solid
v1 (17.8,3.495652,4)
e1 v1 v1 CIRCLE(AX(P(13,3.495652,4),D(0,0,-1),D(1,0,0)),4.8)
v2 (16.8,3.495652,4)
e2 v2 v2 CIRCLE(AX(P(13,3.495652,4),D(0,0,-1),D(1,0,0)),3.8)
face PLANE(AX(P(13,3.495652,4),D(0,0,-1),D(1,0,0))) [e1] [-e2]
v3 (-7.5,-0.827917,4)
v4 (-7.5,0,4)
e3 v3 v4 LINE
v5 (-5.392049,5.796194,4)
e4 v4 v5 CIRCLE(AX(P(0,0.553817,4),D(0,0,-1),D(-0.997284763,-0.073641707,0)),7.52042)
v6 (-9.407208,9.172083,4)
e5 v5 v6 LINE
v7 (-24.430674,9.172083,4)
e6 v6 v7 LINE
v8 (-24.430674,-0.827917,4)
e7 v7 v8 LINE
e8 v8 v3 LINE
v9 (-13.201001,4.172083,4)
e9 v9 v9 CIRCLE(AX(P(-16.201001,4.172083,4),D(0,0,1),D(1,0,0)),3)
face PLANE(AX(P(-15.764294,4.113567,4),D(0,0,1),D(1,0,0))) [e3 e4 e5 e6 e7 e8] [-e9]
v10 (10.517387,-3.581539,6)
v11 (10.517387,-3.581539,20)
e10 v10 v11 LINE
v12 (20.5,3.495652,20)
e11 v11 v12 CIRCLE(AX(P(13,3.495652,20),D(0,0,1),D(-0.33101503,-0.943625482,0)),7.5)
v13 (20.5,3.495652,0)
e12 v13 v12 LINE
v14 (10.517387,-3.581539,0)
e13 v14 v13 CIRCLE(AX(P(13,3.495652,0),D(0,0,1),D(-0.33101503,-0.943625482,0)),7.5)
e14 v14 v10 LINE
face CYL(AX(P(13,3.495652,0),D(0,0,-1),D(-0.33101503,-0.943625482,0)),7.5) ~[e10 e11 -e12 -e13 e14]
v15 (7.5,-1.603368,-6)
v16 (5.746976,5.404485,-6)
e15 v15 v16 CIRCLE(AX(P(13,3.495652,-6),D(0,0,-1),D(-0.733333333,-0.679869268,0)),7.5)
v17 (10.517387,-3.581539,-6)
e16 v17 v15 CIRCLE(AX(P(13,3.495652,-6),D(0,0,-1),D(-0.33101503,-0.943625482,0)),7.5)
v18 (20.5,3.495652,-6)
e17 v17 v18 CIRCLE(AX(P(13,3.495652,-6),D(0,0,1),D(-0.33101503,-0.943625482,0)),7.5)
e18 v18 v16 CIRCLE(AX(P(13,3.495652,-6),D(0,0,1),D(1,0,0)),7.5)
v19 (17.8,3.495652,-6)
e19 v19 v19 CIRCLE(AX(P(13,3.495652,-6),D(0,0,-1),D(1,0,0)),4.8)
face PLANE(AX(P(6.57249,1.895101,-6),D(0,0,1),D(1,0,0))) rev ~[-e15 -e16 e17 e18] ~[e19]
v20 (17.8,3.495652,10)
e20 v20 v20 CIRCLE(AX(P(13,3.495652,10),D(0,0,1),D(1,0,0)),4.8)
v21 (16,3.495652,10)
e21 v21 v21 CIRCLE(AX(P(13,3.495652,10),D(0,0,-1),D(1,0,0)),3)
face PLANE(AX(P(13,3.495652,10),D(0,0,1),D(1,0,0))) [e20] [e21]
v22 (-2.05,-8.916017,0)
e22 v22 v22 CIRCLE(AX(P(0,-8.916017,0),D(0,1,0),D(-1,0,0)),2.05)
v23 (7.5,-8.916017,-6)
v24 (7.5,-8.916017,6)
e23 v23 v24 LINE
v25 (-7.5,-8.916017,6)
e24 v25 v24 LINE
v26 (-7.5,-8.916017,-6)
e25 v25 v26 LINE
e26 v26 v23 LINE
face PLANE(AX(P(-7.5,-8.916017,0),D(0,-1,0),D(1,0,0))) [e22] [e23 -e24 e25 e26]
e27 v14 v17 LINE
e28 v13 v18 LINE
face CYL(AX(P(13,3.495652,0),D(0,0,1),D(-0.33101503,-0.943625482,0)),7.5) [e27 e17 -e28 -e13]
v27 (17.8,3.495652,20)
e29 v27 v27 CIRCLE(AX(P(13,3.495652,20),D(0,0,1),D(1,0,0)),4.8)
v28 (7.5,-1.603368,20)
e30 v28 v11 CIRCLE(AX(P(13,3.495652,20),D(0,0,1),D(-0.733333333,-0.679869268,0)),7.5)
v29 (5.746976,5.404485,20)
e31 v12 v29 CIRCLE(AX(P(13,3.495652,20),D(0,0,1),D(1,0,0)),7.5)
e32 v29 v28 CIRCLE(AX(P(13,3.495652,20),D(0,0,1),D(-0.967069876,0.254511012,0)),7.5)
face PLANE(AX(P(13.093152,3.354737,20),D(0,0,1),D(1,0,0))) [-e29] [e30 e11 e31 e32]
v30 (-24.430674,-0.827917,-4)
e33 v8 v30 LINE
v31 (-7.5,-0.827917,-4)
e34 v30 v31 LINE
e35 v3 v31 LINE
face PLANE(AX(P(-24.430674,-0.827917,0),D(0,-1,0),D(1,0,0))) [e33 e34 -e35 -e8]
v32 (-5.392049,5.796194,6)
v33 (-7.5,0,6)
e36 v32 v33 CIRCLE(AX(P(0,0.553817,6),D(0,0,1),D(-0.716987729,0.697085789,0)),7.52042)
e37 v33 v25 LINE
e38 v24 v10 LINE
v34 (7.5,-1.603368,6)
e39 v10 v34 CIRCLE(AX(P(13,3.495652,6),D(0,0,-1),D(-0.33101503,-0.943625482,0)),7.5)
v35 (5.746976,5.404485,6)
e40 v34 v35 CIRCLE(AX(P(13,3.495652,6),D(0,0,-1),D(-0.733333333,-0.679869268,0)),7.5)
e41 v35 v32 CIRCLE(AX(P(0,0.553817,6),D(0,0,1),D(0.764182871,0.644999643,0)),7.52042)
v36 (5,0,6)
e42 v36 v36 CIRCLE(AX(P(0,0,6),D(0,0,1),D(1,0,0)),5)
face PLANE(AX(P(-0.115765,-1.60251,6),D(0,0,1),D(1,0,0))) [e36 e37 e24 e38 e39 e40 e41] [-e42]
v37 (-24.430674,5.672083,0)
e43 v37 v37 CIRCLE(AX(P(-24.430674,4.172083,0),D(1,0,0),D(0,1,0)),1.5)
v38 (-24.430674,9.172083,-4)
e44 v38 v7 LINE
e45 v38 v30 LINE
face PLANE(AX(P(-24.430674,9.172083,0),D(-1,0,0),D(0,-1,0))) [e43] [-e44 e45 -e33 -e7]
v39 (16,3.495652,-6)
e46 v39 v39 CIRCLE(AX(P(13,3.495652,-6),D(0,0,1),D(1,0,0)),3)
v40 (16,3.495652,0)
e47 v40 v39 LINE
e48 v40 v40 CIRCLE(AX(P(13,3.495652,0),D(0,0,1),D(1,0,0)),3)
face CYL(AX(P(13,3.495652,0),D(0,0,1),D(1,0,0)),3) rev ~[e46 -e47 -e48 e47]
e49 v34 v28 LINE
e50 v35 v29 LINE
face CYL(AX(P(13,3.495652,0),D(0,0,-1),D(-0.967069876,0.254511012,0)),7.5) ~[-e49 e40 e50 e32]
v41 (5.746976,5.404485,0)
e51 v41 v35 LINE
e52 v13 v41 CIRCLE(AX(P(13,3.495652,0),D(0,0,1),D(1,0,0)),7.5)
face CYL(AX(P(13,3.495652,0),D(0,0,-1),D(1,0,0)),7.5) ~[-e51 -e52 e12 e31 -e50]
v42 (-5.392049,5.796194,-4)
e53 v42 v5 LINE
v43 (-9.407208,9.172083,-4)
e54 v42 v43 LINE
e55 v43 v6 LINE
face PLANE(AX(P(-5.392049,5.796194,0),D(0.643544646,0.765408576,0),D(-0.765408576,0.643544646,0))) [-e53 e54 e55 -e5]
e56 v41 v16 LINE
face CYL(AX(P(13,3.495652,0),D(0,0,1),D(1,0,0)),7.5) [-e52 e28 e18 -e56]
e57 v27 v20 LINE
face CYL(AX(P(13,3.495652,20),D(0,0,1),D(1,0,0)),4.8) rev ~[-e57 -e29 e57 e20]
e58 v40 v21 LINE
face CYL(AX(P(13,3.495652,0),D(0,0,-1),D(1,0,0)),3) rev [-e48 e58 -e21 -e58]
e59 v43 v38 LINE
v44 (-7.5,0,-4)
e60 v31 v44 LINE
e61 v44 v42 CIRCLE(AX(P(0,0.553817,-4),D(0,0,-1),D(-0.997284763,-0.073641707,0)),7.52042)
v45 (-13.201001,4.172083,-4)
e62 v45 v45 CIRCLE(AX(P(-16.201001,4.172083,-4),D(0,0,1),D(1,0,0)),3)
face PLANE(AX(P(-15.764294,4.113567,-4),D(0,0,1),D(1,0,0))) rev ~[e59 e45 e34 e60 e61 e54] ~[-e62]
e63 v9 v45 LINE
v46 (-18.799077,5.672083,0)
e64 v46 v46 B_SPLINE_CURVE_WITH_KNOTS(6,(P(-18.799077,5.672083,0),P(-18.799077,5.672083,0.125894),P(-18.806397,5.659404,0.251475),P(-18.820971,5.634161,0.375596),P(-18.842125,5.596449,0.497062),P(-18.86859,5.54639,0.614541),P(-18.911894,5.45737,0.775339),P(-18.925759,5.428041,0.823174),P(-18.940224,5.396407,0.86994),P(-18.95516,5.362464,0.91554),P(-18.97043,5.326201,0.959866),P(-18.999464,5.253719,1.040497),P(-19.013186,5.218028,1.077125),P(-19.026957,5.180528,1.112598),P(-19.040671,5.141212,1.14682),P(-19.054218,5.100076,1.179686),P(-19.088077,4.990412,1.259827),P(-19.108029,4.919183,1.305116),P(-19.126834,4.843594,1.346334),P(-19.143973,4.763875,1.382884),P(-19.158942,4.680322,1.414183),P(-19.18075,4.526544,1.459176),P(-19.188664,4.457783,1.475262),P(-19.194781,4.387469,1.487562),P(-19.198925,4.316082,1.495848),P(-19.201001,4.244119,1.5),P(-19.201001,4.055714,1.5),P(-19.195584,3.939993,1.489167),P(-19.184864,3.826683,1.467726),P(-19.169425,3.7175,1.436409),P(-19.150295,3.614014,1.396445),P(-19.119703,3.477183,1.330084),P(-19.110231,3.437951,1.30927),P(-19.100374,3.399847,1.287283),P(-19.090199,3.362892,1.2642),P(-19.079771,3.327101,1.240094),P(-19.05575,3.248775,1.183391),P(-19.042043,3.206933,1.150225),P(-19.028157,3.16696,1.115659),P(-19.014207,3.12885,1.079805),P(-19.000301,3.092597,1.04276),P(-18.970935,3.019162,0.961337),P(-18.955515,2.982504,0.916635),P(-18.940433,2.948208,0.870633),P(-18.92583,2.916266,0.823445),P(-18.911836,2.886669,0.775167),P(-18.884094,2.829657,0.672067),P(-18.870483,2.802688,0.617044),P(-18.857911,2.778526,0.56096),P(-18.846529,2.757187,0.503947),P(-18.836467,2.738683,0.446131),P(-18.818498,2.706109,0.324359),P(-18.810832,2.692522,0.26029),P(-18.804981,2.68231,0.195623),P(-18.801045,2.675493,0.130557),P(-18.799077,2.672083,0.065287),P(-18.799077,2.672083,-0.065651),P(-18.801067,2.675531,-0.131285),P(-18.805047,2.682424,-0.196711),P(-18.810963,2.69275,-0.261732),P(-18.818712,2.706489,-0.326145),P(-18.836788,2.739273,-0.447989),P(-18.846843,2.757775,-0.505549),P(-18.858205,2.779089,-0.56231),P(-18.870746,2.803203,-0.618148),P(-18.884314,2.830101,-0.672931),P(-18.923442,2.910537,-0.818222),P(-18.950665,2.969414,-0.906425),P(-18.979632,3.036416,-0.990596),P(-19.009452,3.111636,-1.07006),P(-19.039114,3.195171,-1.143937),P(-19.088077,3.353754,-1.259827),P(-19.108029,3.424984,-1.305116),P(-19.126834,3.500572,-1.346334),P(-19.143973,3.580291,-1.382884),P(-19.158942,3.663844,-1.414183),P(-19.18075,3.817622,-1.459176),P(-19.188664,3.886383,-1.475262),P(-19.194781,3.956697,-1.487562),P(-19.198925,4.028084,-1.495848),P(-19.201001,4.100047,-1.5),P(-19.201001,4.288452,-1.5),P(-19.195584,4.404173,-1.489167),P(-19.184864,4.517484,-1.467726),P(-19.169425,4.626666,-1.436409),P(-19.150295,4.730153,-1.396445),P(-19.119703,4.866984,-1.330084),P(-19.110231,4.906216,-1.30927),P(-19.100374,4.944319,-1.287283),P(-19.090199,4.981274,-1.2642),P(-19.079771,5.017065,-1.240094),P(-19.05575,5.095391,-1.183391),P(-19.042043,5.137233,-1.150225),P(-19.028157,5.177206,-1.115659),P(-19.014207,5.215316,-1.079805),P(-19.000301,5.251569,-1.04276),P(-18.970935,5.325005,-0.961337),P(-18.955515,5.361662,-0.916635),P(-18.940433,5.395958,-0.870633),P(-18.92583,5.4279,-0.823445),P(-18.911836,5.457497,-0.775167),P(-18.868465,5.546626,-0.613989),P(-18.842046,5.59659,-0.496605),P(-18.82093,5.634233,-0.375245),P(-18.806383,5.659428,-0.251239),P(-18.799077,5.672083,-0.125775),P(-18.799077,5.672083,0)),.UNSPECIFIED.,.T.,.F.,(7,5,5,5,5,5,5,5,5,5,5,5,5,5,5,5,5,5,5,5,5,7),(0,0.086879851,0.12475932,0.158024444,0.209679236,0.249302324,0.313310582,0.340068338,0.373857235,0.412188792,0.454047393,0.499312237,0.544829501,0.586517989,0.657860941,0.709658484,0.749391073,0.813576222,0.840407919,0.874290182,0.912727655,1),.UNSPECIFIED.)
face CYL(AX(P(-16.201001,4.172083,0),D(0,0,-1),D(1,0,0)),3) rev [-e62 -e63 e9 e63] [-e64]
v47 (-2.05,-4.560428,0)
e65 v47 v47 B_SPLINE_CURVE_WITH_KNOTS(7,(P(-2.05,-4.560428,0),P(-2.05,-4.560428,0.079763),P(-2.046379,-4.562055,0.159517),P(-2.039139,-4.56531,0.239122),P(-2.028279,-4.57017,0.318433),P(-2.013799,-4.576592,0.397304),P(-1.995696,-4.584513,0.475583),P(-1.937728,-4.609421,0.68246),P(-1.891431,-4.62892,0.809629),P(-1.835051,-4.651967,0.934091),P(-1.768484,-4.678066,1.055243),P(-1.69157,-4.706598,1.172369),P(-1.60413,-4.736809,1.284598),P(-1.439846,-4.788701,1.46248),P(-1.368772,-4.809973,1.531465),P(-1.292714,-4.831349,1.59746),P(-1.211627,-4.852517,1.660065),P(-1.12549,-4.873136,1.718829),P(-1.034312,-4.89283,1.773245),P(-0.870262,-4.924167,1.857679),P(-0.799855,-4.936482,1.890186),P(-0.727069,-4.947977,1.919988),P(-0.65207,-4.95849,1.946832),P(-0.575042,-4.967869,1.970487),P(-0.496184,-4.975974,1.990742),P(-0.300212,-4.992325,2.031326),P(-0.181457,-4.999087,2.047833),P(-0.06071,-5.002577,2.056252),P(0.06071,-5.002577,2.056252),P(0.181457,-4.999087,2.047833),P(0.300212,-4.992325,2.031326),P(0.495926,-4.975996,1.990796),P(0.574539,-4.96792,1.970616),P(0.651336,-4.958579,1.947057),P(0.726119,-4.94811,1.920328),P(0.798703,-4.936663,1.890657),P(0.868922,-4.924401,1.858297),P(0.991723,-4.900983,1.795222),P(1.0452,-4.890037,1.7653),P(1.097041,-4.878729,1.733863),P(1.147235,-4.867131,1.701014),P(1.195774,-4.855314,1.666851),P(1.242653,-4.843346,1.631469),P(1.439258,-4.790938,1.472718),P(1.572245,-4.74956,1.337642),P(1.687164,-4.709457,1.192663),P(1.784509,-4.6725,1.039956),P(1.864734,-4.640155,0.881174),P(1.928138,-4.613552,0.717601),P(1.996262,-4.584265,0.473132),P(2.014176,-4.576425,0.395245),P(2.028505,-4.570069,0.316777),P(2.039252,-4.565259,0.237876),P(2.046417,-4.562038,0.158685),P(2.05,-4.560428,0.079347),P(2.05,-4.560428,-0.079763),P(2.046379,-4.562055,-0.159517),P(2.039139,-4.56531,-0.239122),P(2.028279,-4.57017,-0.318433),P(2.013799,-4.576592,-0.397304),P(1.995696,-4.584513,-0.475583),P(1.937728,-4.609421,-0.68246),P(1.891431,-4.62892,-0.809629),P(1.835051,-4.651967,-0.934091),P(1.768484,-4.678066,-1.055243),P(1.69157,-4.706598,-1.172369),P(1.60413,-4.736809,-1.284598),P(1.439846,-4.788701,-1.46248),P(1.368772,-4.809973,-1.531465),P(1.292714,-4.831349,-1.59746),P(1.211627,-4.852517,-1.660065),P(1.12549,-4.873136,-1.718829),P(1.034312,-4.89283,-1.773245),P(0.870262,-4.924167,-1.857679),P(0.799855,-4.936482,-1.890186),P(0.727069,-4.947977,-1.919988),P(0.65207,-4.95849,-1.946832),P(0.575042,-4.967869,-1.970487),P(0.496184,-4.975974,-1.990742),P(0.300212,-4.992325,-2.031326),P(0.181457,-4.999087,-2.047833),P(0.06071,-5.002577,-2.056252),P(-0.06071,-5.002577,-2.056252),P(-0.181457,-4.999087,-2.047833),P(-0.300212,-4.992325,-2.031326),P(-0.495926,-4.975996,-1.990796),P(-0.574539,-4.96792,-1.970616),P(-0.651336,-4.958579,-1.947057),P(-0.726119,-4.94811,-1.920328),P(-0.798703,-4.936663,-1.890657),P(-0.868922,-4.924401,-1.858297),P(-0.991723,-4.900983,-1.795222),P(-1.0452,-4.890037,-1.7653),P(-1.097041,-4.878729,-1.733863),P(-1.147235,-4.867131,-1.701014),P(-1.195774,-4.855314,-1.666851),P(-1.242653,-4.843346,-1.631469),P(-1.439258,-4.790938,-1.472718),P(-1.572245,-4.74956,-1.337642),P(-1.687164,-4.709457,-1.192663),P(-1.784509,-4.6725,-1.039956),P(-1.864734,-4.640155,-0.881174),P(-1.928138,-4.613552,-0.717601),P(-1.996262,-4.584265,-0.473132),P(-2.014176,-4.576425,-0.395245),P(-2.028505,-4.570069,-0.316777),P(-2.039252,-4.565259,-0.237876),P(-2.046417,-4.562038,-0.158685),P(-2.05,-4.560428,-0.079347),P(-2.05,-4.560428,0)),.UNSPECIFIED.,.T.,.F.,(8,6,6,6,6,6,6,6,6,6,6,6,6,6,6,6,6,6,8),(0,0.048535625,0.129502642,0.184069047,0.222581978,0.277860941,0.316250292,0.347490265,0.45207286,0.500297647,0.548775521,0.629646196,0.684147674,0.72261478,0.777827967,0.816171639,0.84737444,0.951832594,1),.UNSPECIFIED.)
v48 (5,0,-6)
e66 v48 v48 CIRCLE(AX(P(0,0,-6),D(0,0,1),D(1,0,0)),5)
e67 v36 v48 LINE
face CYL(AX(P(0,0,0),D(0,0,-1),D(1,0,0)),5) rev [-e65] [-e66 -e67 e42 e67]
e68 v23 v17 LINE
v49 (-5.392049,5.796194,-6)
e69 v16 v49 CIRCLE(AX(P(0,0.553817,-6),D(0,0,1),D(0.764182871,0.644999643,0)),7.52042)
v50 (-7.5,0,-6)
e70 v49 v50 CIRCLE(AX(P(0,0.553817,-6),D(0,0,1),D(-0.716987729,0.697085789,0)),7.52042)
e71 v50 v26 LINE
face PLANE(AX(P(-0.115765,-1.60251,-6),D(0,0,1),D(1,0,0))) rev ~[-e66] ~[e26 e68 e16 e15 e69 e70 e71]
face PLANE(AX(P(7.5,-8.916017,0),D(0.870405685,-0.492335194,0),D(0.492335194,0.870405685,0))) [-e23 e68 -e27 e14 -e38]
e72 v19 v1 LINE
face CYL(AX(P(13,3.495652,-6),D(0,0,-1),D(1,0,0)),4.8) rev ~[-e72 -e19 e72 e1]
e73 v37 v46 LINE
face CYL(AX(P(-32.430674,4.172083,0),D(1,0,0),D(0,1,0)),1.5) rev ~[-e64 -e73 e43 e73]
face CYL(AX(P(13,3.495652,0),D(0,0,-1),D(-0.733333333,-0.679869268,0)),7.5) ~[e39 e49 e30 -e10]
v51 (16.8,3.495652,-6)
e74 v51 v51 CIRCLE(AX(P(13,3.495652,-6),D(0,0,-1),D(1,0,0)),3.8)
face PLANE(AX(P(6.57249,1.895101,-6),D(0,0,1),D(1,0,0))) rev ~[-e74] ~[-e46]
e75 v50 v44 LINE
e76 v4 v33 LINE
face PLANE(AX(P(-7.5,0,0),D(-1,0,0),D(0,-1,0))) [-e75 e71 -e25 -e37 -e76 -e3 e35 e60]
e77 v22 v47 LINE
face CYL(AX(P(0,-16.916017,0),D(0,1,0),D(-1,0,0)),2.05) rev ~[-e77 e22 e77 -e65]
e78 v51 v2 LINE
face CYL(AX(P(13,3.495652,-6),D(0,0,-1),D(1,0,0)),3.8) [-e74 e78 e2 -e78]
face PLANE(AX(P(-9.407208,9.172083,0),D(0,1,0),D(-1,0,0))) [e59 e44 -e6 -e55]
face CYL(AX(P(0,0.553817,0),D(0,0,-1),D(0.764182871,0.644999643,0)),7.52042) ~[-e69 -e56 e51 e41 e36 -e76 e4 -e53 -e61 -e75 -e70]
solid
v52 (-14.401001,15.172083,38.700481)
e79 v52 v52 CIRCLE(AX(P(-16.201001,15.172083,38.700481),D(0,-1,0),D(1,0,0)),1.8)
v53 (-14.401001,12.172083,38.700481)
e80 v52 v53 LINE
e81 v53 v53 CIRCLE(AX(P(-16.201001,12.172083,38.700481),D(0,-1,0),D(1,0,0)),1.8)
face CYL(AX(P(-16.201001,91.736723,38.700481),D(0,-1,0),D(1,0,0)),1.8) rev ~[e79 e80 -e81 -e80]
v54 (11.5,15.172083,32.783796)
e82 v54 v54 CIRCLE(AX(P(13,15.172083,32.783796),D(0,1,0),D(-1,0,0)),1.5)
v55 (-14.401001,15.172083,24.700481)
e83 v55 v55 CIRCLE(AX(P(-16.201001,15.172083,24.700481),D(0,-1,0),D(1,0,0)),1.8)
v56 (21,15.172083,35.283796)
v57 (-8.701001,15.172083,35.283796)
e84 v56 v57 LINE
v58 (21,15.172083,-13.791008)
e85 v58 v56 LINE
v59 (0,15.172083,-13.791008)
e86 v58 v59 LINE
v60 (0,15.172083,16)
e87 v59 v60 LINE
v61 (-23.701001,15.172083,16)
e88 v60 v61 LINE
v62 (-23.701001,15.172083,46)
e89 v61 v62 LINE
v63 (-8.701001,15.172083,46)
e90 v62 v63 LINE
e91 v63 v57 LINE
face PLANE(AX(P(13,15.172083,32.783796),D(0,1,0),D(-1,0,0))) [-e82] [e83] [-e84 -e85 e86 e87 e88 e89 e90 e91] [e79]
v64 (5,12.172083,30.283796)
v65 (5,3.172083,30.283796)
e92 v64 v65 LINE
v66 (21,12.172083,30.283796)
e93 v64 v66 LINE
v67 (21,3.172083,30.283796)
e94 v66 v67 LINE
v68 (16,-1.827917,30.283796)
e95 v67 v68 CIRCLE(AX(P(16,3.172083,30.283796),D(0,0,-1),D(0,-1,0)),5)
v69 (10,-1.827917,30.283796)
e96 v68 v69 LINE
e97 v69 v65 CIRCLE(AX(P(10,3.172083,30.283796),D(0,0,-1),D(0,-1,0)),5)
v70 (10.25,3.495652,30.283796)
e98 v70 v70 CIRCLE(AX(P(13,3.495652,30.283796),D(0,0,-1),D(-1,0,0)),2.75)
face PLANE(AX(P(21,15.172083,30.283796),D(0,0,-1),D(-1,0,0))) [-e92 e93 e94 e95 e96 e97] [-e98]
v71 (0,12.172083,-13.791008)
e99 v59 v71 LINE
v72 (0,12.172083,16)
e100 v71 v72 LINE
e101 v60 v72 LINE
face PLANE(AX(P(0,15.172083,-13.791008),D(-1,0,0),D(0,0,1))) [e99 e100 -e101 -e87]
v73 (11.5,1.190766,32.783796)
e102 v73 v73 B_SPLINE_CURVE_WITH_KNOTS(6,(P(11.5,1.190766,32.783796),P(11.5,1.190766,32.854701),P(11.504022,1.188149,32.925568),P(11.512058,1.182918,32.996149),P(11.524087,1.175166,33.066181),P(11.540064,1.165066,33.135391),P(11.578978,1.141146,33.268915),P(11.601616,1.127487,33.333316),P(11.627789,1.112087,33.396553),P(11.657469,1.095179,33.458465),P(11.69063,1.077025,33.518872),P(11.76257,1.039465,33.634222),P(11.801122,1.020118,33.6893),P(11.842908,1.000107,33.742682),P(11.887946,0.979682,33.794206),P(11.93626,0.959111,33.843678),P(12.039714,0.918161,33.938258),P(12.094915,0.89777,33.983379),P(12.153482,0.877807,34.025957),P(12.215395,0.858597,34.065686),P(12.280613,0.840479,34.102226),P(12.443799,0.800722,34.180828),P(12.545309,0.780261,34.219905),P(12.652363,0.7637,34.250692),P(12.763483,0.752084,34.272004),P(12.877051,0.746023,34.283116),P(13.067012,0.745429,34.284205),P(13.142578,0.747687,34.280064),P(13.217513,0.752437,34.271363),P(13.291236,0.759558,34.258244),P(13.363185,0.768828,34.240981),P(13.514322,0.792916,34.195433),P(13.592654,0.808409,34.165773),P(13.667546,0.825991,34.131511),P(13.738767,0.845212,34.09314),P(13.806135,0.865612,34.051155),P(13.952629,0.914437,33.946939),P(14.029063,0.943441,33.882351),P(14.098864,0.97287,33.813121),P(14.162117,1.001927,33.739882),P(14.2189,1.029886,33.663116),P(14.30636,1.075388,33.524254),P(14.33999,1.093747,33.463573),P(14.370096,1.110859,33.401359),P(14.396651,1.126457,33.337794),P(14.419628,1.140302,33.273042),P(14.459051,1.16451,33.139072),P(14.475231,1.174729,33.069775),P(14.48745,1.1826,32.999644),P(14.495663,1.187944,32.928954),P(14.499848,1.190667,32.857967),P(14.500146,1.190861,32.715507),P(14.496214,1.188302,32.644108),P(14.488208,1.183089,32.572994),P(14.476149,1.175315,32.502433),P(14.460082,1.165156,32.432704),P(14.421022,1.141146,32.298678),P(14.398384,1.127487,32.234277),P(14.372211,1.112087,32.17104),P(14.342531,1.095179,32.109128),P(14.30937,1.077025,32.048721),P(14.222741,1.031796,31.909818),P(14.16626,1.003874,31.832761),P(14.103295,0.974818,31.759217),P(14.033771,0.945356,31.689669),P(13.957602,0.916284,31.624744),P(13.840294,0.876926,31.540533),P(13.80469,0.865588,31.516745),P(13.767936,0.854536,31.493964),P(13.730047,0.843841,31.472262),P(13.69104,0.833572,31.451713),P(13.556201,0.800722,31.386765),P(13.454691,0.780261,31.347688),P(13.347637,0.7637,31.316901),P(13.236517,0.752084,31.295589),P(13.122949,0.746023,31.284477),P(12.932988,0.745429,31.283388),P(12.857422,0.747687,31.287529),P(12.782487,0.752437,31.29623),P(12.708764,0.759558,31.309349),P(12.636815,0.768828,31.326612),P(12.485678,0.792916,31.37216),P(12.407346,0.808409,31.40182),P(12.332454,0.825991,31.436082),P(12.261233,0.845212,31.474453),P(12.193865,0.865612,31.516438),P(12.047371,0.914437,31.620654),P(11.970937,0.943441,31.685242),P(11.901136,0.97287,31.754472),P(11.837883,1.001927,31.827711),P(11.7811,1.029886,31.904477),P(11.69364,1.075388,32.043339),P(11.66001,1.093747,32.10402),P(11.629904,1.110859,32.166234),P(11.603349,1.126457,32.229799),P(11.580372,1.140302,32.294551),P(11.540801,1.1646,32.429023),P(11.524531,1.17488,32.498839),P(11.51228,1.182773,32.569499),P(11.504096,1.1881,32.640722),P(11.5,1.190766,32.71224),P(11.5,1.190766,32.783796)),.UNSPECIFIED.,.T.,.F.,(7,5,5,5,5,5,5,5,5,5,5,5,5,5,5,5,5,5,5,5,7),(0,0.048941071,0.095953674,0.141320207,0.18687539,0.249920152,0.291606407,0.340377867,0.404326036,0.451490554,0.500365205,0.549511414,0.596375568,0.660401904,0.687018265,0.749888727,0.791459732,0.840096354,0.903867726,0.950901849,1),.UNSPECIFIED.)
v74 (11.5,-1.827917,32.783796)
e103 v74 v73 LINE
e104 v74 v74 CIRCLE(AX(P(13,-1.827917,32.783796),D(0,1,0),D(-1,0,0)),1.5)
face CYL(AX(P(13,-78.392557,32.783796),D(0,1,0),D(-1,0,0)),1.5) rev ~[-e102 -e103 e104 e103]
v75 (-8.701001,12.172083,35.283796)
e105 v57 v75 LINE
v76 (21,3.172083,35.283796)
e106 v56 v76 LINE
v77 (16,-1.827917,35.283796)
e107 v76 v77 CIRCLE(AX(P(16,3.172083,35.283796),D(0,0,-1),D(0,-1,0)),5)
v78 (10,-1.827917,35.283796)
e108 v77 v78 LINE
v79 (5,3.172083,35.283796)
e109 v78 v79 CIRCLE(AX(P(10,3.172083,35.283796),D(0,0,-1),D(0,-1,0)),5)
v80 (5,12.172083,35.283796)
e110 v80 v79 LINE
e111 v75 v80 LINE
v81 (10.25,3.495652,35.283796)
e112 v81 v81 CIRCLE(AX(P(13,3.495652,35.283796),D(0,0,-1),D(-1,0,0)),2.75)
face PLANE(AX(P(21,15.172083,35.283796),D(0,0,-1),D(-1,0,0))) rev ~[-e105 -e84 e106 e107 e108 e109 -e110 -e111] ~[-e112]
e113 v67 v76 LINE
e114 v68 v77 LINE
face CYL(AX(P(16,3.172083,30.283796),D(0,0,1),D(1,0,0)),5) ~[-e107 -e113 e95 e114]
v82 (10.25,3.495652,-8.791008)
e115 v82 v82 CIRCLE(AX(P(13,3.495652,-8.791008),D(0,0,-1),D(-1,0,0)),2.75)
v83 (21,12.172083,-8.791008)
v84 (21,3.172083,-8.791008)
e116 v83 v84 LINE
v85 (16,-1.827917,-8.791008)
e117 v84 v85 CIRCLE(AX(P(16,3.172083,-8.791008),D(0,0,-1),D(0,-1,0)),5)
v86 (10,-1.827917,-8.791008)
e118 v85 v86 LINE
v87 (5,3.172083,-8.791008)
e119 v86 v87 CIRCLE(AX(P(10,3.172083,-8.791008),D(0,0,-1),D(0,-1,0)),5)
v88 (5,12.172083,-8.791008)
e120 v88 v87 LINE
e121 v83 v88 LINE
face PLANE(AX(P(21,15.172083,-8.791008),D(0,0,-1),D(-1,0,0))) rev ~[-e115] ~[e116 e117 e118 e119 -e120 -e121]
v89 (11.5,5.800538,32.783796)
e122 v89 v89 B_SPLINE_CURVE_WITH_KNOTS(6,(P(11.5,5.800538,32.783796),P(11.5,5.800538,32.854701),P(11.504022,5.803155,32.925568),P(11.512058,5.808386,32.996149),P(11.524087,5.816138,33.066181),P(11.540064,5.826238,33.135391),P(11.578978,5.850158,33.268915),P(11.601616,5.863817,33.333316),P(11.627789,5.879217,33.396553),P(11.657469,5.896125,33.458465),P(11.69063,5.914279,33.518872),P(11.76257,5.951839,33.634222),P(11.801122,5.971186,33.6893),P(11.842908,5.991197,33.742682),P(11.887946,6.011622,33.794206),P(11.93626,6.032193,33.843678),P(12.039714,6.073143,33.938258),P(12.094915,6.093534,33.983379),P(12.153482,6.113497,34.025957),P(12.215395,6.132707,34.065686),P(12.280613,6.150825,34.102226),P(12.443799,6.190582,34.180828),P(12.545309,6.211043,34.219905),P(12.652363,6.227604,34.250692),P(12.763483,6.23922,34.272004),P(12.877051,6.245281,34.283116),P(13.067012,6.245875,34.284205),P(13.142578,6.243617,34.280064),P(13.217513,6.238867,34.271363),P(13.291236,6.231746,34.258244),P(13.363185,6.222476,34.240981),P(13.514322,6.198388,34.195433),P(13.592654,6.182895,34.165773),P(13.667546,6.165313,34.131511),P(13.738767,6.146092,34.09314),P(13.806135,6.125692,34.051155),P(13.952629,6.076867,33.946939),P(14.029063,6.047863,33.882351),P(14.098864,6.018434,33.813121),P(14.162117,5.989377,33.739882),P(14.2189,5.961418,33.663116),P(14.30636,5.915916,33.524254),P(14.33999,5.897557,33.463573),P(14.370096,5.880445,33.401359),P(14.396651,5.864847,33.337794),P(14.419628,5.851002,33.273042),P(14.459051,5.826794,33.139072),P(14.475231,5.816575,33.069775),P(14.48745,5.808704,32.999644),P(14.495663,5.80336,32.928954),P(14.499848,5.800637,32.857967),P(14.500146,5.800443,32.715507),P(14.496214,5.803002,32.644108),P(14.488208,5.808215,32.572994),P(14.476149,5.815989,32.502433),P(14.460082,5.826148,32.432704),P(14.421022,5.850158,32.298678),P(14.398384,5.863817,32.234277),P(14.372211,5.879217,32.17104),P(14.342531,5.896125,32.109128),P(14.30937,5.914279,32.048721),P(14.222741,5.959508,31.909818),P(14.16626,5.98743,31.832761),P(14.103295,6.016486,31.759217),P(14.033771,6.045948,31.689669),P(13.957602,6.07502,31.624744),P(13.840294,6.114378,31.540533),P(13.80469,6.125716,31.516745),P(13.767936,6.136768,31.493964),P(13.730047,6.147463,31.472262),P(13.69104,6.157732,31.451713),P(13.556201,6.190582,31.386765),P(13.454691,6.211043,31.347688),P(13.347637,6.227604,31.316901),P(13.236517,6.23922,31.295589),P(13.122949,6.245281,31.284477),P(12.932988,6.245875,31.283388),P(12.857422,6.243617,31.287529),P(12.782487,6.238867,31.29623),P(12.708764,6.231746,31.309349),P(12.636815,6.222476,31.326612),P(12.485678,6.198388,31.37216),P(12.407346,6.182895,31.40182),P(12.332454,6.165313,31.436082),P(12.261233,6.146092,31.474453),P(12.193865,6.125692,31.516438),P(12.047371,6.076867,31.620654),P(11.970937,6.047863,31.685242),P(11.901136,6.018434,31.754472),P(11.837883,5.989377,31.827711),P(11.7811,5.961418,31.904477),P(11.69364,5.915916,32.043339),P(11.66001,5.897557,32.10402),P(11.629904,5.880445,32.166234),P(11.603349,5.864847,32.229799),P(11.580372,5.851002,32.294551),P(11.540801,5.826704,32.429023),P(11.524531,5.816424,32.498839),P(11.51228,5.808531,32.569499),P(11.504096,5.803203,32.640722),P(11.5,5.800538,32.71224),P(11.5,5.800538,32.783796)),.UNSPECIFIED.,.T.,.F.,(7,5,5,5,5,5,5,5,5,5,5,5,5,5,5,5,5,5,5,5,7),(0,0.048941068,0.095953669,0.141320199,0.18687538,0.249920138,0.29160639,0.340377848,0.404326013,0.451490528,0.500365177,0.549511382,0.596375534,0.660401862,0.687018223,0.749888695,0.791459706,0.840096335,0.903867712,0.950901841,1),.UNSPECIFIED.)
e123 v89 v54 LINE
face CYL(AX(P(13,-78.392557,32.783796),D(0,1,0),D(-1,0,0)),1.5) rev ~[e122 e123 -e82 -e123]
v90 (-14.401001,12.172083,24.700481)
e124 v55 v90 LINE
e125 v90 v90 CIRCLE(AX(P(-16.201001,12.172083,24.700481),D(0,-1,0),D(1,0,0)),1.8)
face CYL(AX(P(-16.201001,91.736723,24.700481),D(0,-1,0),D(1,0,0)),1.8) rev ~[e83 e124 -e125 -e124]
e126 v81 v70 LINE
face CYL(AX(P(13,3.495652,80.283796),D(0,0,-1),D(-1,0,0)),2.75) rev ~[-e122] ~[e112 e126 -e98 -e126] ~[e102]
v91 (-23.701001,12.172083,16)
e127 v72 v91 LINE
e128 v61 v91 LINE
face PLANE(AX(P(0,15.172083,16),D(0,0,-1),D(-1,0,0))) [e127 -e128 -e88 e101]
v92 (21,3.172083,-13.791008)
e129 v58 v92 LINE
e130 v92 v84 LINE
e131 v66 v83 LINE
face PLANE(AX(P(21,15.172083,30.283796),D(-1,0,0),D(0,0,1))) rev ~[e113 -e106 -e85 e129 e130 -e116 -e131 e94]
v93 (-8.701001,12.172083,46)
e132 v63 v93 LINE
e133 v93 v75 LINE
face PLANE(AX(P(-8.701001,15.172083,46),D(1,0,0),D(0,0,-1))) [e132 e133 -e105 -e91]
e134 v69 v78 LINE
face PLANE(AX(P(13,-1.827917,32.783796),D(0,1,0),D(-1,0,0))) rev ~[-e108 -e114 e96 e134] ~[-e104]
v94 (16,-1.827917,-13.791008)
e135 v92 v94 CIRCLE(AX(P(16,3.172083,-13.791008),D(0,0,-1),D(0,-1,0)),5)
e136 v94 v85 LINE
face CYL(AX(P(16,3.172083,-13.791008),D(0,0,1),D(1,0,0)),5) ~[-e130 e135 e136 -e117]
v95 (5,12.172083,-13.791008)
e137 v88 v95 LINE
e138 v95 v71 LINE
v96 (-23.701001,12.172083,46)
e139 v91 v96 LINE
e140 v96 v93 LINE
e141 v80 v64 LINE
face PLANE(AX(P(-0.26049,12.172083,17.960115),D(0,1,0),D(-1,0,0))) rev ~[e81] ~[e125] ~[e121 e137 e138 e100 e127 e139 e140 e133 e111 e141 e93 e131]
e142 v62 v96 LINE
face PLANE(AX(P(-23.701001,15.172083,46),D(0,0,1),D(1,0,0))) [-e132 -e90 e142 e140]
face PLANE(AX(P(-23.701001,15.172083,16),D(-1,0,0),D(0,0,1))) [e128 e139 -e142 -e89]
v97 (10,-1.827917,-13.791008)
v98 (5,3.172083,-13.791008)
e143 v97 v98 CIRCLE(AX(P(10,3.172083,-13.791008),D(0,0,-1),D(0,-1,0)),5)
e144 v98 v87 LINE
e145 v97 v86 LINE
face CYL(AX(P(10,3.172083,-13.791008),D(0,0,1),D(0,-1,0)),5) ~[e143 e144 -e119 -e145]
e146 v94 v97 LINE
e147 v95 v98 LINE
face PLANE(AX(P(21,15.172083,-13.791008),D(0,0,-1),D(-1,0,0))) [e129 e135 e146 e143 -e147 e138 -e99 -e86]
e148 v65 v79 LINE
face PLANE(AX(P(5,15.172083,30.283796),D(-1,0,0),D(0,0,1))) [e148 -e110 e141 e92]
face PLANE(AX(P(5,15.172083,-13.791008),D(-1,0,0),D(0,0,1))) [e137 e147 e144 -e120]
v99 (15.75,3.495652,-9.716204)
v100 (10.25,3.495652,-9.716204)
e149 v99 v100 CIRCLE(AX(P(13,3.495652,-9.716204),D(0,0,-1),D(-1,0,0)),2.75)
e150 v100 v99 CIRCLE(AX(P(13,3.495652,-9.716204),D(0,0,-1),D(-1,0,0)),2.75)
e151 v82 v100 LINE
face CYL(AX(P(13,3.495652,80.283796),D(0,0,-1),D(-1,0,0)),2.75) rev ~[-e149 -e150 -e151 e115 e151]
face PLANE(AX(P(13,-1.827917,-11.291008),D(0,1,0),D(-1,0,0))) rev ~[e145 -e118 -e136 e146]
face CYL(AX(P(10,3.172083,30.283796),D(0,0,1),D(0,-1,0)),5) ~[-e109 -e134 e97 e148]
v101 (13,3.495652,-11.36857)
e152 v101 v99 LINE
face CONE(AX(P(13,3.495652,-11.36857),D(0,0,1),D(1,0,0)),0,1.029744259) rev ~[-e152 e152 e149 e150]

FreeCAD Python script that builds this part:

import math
import FreeCAD as App
import Part
import Sketcher

V = App.Vector


def edges_at(feature, points):
    """Names of the edges that pass closest to the given points."""
    edges = feature.Shape.Edges
    near = lambda p: min(range(len(edges)), key=lambda i: edges[i].distToShape(Part.Vertex(*p))[0])
    return sorted({f"Edge{near(p) + 1}" for p in points})


def add_polygon(sketch, points):
    """Adds a closed chain of lines whose ends are joined by coincident constraints."""
    first, n = sketch.GeometryCount, len(points)
    for a, b in zip(points, points[1:] + points[:1]):
        sketch.addGeometry(Part.LineSegment(App.Vector(*a, 0), App.Vector(*b, 0)), False)
    for i in range(n):
        sketch.addConstraint(Sketcher.Constraint("Coincident", first + i, 2, first + (i + 1) % n, 1))

doc = App.newDocument("Part")
params = doc.addObject("Spreadsheet::Sheet", "Params")
for row, (alias, value) in enumerate([
    ("sketch1_diameter", "10 mm"),
    ("sketch1_radius", "7.5 mm"),
    ("sketch1_width", "15 mm"),
    ("pad1_length", "12 mm"),
    ("sketch2_diameter", "6 mm"),
    ("sketch2_radius", "7.5 mm"),
    ("pad2_length", "20 mm"),
    ("sketch3_diameter", "6 mm"),
    ("sketch3_radius", "7.5 mm"),
    ("pad3_length", "6 mm"),
    ("sketch4_diameter", "6 mm"),
    ("sketch4_height", "10 mm"),
    ("pad4_length", "8 mm"),
    ("sketch5_diameter", "9.6 mm"),
    ("pocket1_length", "10 mm"),
    ("sketch6_diameter", "9.6 mm"),
    ("sketch6_diameter2", "7.6 mm"),
    ("pocket2_length", "10 mm"),
    ("sketch7_diameter", "3 mm"),
    ("hole_diameter", "3 mm"),
    ("hole_depth", "8 mm"),
    ("sketch8_diameter", "4.1 mm"),
    ("hole2_diameter", "4.1 mm"),
    ("hole2_depth", "8 mm"),
    ("sketch9_width", "15 mm"),
    ("sketch9_width2", "16 mm"),
    ("sketch9_width3", "5 mm"),
    ("sketch9_height", "30 mm"),
    ("pad5_length", "3 mm"),
    ("sketch10_width", "16 mm"),
    ("sketch10_height", "5 mm"),
    ("pad6_length", "17 mm"),
    ("sketch11_diameter", "3.6 mm"),
    ("hole3_diameter", "3.6 mm"),
    ("sketch12_diameter", "5.5 mm"),
    ("hole4_diameter", "5.5 mm"),
    ("hole4_depth", "45 mm"),
    ("fillet_radius", "5 mm"),
    ("sketch13_diameter", "3 mm"),
    ("hole5_diameter", "3 mm"),
], start=1):
    params.set(f"A{row}", alias)
    params.set(f"B{row}", "=" + value)
    params.setAlias(f"B{row}", alias)

body = doc.addObject("PartDesign::Body", "Body")

sketch1 = body.newObject("Sketcher::SketchObject", "Sketch")
sketch1.AttachmentSupport = (doc.getObject("XY_Plane"), [""])
sketch1.MapMode = "FlatFace"
sketch1.addGeometry(Part.LineSegment(V(-7.5, -8.9, 0), V(7.5, -8.9, 0)), False)
sketch1.addGeometry(Part.LineSegment(V(7.5, -8.9, 0), V(10.5, -3.6, 0)), False)
sketch1.addGeometry(Part.ArcOfCircle(Part.Circle(V(13, 3.5, 0), V(0, 0, 1), 7.5), math.radians(-137), math.radians(-109)), False)
sketch1.addGeometry(Part.ArcOfCircle(Part.Circle(V(13, 3.5, 0), V(0, 0, 1), 7.5), math.radians(165), math.radians(223)), False)
sketch1.addGeometry(Part.ArcOfCircle(Part.Circle(V(0, 0.6, 0), V(0, 0, 1), 7.5), math.radians(40), math.radians(136)), False)
sketch1.addGeometry(Part.ArcOfCircle(Part.Circle(V(0, 0.6, 0), V(0, 0, 1), 7.5), math.radians(136), math.radians(184)), False)
sketch1.addGeometry(Part.LineSegment(V(-7.5, 0, 0), V(-7.5, -8.9, 0)), False)
sketch1.addGeometry(Part.Circle(V(0, 0, 0), V(0, 0, 1), 5), False)
sketch1.addConstraint(Sketcher.Constraint("Coincident", 0, 2, 1, 1))
sketch1.addConstraint(Sketcher.Constraint("Coincident", 1, 2, 2, 2))
sketch1.addConstraint(Sketcher.Constraint("Tangent", 2, 1, 3, 2))
sketch1.addConstraint(Sketcher.Constraint("Coincident", 3, 1, 4, 1))
sketch1.addConstraint(Sketcher.Constraint("Tangent", 4, 2, 5, 1))
sketch1.addConstraint(Sketcher.Constraint("Coincident", 5, 2, 6, 1))
sketch1.addConstraint(Sketcher.Constraint("Coincident", 6, 2, 0, 1))
sketch1.addConstraint(Sketcher.Constraint("Horizontal", 0))
sketch1.addConstraint(Sketcher.Constraint("Vertical", 6))
sketch1.addConstraint(Sketcher.Constraint("Coincident", 7, 3, -1, 1))
sketch1.addConstraint(Sketcher.Constraint("Equal", 2, 3))
sketch1.addConstraint(Sketcher.Constraint("Equal", 4, 5))
sketch1.addConstraint(Sketcher.Constraint("PointOnObject", 4, 3, -2))
sketch1.addConstraint(Sketcher.Constraint("PointOnObject", 5, 2, -1))
sketch1.addConstraint(Sketcher.Constraint("Vertical", 0, 2, 2, 1))
sketch1.addConstraint(Sketcher.Constraint("Diameter", 7, 10.0))
sketch1.addConstraint(Sketcher.Constraint("Radius", 2, 7.5))
sketch1.addConstraint(Sketcher.Constraint("DistanceX", 0, 1, 0, 2, 15.0))
sketch1.addConstraint(Sketcher.Constraint("DistanceX", -1, 1, 2, 3, 13.0))
sketch1.addConstraint(Sketcher.Constraint("DistanceX", -1, 1, 0, 2, 7.5))
sketch1.addConstraint(Sketcher.Constraint("Radius", 4, 7.52042))
sketch1.addConstraint(Sketcher.Constraint("DistanceY", 6, 2, 6, 1, 8.916017))
sketch1.addConstraint(Sketcher.Constraint("DistanceY", -1, 1, 2, 3, 3.495652))
sketch1.addConstraint(Sketcher.Constraint("DistanceY", 1, 2, -1, 1, 3.581539))
sketch1.addConstraint(Sketcher.Constraint("DistanceX", 4, 2, -1, 1, 5.392049))
sketch1.setExpression("Constraints[15]", "Params.sketch1_diameter")
sketch1.setExpression("Constraints[16]", "Params.sketch1_radius")
sketch1.setExpression("Constraints[17]", "Params.sketch1_width")
pad1 = body.newObject("PartDesign::Pad", "Pad")
pad1.Profile = sketch1
pad1.setExpression("Length", "Params.pad1_length")
pad1.Midplane = True

sketch2 = body.newObject("Sketcher::SketchObject", "Sketch001")
sketch2.AttachmentSupport = (doc.getObject("XY_Plane"), [""])
sketch2.MapMode = "FlatFace"
sketch2.addGeometry(Part.ArcOfCircle(Part.Circle(V(13, 3.5, 0), V(0, 0, 1), 7.5), math.radians(-137), math.radians(-109)), False)
sketch2.addGeometry(Part.ArcOfCircle(Part.Circle(V(13, 3.5, 0), V(0, 0, 1), 7.5), math.radians(-109), math.radians(0)), False)
sketch2.addGeometry(Part.ArcOfCircle(Part.Circle(V(13, 3.5, 0), V(0, 0, 1), 7.5), math.radians(0), math.radians(165)), False)
sketch2.addGeometry(Part.ArcOfCircle(Part.Circle(V(13, 3.5, 0), V(0, 0, 1), 7.5), math.radians(165), math.radians(223)), False)
sketch2.addGeometry(Part.Circle(V(13, 3.5, 0), V(0, 0, 1), 3), False)
sketch2.addConstraint(Sketcher.Constraint("Tangent", 0, 2, 1, 1))
sketch2.addConstraint(Sketcher.Constraint("Tangent", 1, 2, 2, 1))
sketch2.addConstraint(Sketcher.Constraint("Tangent", 2, 2, 3, 1))
sketch2.addConstraint(Sketcher.Constraint("Tangent", 3, 2, 0, 1))
sketch2.addConstraint(Sketcher.Constraint("Coincident", 4, 3, 0, 3))
sketch2.addConstraint(Sketcher.Constraint("Equal", 0, 1))
sketch2.addConstraint(Sketcher.Constraint("Horizontal", 4, 3, 1, 2))
sketch2.addConstraint(Sketcher.Constraint("Diameter", 4, 6.0))
sketch2.addConstraint(Sketcher.Constraint("Radius", 0, 7.5))
sketch2.addConstraint(Sketcher.Constraint("DistanceX", -1, 1, 0, 3, 13.0))
sketch2.addConstraint(Sketcher.Constraint("DistanceX", -1, 1, 3, 2, 7.5))
sketch2.addConstraint(Sketcher.Constraint("DistanceY", -1, 1, 0, 3, 3.495652))
sketch2.addConstraint(Sketcher.Constraint("DistanceY", 0, 2, -1, 1, 3.581539))
sketch2.addConstraint(Sketcher.Constraint("DistanceX", -1, 1, 2, 2, 5.746976))
sketch2.setExpression("Constraints[7]", "Params.sketch2_diameter")
sketch2.setExpression("Constraints[8]", "Params.sketch2_radius")
pad2 = body.newObject("PartDesign::Pad", "Pad001")
pad2.Profile = sketch2
pad2.setExpression("Length", "Params.pad2_length")

sketch3 = body.newObject("Sketcher::SketchObject", "Sketch002")
sketch3.AttachmentSupport = (doc.getObject("XY_Plane"), [""])
sketch3.MapMode = "FlatFace"
sketch3.addGeometry(Part.ArcOfCircle(Part.Circle(V(13, 3.5, 0), V(0, 0, 1), 7.5), math.radians(165), math.radians(223)), False)
sketch3.addGeometry(Part.ArcOfCircle(Part.Circle(V(13, 3.5, 0), V(0, 0, 1), 7.5), math.radians(-137), math.radians(-109)), False)
sketch3.addGeometry(Part.ArcOfCircle(Part.Circle(V(13, 3.5, 0), V(0, 0, 1), 7.5), math.radians(-109), math.radians(0)), False)
sketch3.addGeometry(Part.ArcOfCircle(Part.Circle(V(13, 3.5, 0), V(0, 0, 1), 7.5), math.radians(0), math.radians(165)), False)
sketch3.addGeometry(Part.Circle(V(13, 3.5, 0), V(0, 0, 1), 3), False)
sketch3.addConstraint(Sketcher.Constraint("Tangent", 0, 2, 1, 1))
sketch3.addConstraint(Sketcher.Constraint("Tangent", 1, 2, 2, 1))
sketch3.addConstraint(Sketcher.Constraint("Tangent", 2, 2, 3, 1))
sketch3.addConstraint(Sketcher.Constraint("Tangent", 3, 2, 0, 1))
sketch3.addConstraint(Sketcher.Constraint("Coincident", 4, 3, 0, 3))
sketch3.addConstraint(Sketcher.Constraint("Equal", 0, 1))
sketch3.addConstraint(Sketcher.Constraint("Horizontal", 4, 3, 2, 2))
sketch3.addConstraint(Sketcher.Constraint("Diameter", 4, 6.0))
sketch3.addConstraint(Sketcher.Constraint("Radius", 0, 7.5))
sketch3.addConstraint(Sketcher.Constraint("DistanceX", -1, 1, 0, 3, 13.0))
sketch3.addConstraint(Sketcher.Constraint("DistanceX", -1, 1, 0, 2, 7.5))
sketch3.addConstraint(Sketcher.Constraint("DistanceY", -1, 1, 0, 3, 3.495652))
sketch3.addConstraint(Sketcher.Constraint("DistanceY", 1, 2, -1, 1, 3.581539))
sketch3.addConstraint(Sketcher.Constraint("DistanceX", -1, 1, 3, 2, 5.746976))
sketch3.setExpression("Constraints[7]", "Params.sketch3_diameter")
sketch3.setExpression("Constraints[8]", "Params.sketch3_radius")
pad3 = body.newObject("PartDesign::Pad", "Pad002")
pad3.Profile = sketch3
pad3.setExpression("Length", "Params.pad3_length")
pad3.Reversed = True

sketch4 = body.newObject("Sketcher::SketchObject", "Sketch003")
sketch4.AttachmentSupport = (doc.getObject("XY_Plane"), [""])
sketch4.MapMode = "FlatFace"
sketch4.addGeometry(Part.ArcOfCircle(Part.Circle(V(0, 0.6, 0), V(0, 0, 1), 7.5), math.radians(136), math.radians(184)), False)
sketch4.addGeometry(Part.LineSegment(V(-5.4, 5.8, 0), V(-9.4, 9.2, 0)), False)
sketch4.addGeometry(Part.LineSegment(V(-9.4, 9.2, 0), V(-24.4, 9.2, 0)), False)
sketch4.addGeometry(Part.LineSegment(V(-24.4, 9.2, 0), V(-24.4, -0.8, 0)), False)
sketch4.addGeometry(Part.LineSegment(V(-24.4, -0.8, 0), V(-7.5, -0.8, 0)), False)
sketch4.addGeometry(Part.LineSegment(V(-7.5, -0.8, 0), V(-7.5, 0, 0)), False)
sketch4.addGeometry(Part.Circle(V(-16.2, 4.2, 0), V(0, 0, 1), 3), False)
sketch4.addConstraint(Sketcher.Constraint("Coincident", 0, 1, 1, 1))
sketch4.addConstraint(Sketcher.Constraint("Coincident", 1, 2, 2, 1))
sketch4.addConstraint(Sketcher.Constraint("Coincident", 2, 2, 3, 1))
sketch4.addConstraint(Sketcher.Constraint("Coincident", 3, 2, 4, 1))
sketch4.addConstraint(Sketcher.Constraint("Coincident", 4, 2, 5, 1))
sketch4.addConstraint(Sketcher.Constraint("Coincident", 5, 2, 0, 2))
sketch4.addConstraint(Sketcher.Constraint("Horizontal", 2))
sketch4.addConstraint(Sketcher.Constraint("Vertical", 3))
sketch4.addConstraint(Sketcher.Constraint("Horizontal", 4))
sketch4.addConstraint(Sketcher.Constraint("Vertical", 5))
sketch4.addConstraint(Sketcher.Constraint("PointOnObject", 0, 3, -2))
sketch4.addConstraint(Sketcher.Constraint("PointOnObject", 5, 2, -1))
sketch4.addConstraint(Sketcher.Constraint("Diameter", 6, 6.0))
sketch4.addConstraint(Sketcher.Constraint("DistanceY", 3, 2, 3, 1, 10.0))
sketch4.addConstraint(Sketcher.Constraint("DistanceY", 6, 3, 1, 2, 5.0))
sketch4.addConstraint(Sketcher.Constraint("DistanceX", 4, 2, -1, 1, 7.5))
sketch4.addConstraint(Sketcher.Constraint("Radius", 0, 7.52042))
sketch4.addConstraint(Sketcher.Constraint("DistanceX", 6, 3, -1, 1, 16.201001))
sketch4.addConstraint(Sketcher.Constraint("DistanceX", 2, 2, 2, 1, 15.023466))
sketch4.addConstraint(Sketcher.Constraint("DistanceX", 4, 1, 4, 2, 16.930674))
sketch4.addConstraint(Sketcher.Constraint("DistanceY", 5, 1, 5, 2, 0.827917))
sketch4.addConstraint(Sketcher.Constraint("DistanceX", 0, 1, -1, 1, 5.392049))
sketch4.setExpression("Constraints[12]", "Params.sketch4_diameter")
sketch4.setExpression("Constraints[13]", "Params.sketch4_height")
pad4 = body.newObject("PartDesign::Pad", "Pad003")
pad4.Profile = sketch4
pad4.setExpression("Length", "Params.pad4_length")
pad4.Midplane = True

sketch5 = body.newObject("Sketcher::SketchObject", "Sketch004")
sketch5.AttachmentSupport = (doc.getObject("XY_Plane"), [""])
sketch5.MapMode = "FlatFace"
sketch5.AttachmentOffset = App.Placement(V(0, 0, 20), App.Rotation())
sketch5.addGeometry(Part.Circle(V(13, 3.5, 0), V(0, 0, 1), 4.8), False)
sketch5.addConstraint(Sketcher.Constraint("Diameter", 0, 9.6))
sketch5.addConstraint(Sketcher.Constraint("DistanceX", -1, 1, 0, 3, 13.0))
sketch5.addConstraint(Sketcher.Constraint("DistanceY", -1, 1, 0, 3, 3.495652))
sketch5.setExpression("Constraints[0]", "Params.sketch5_diameter")
pocket1 = body.newObject("PartDesign::Pocket", "Pocket")
pocket1.Profile = sketch5
pocket1.setExpression("Length", "Params.pocket1_length")

sketch6 = body.newObject("Sketcher::SketchObject", "Sketch005")
sketch6.AttachmentSupport = (doc.getObject("XY_Plane"), [""])
sketch6.MapMode = "FlatFace"
sketch6.AttachmentOffset = App.Placement(V(0, 0, -6), App.Rotation())
sketch6.addGeometry(Part.Circle(V(13, 3.5, 0), V(0, 0, 1), 4.8), False)
sketch6.addGeometry(Part.Circle(V(13, 3.5, 0), V(0, 0, 1), 3.8), False)
sketch6.addConstraint(Sketcher.Constraint("Coincident", 1, 3, 0, 3))
sketch6.addConstraint(Sketcher.Constraint("Diameter", 0, 9.6))
sketch6.addConstraint(Sketcher.Constraint("Diameter", 1, 7.6))
sketch6.addConstraint(Sketcher.Constraint("DistanceX", -1, 1, 0, 3, 13.0))
sketch6.addConstraint(Sketcher.Constraint("DistanceY", -1, 1, 0, 3, 3.495652))
sketch6.setExpression("Constraints[1]", "Params.sketch6_diameter")
sketch6.setExpression("Constraints[2]", "Params.sketch6_diameter2")
pocket2 = body.newObject("PartDesign::Pocket", "Pocket001")
pocket2.Profile = sketch6
pocket2.setExpression("Length", "Params.pocket2_length")
pocket2.Reversed = True

sketch7 = body.newObject("Sketcher::SketchObject", "Sketch006")
sketch7.AttachmentSupport = (doc.getObject("YZ_Plane"), [""])
sketch7.MapMode = "FlatFace"
sketch7.AttachmentOffset = App.Placement(V(0, 0, -24.430674), App.Rotation())
sketch7.addGeometry(Part.Circle(V(4.2, 0, 0), V(0, 0, 1), 1.5), False)
sketch7.addConstraint(Sketcher.Constraint("PointOnObject", 0, 3, -1))
sketch7.addConstraint(Sketcher.Constraint("Diameter", 0, 3.0))
sketch7.addConstraint(Sketcher.Constraint("DistanceX", -1, 1, 0, 3, 4.172083))
sketch7.setExpression("Constraints[1]", "Params.sketch7_diameter")
doc.recompute()
hole = body.newObject("PartDesign::Hole", "Hole")
hole.Profile = sketch7
hole.ThreadType = "None"
hole.setExpression("Diameter", "Params.hole_diameter")
hole.DepthType = "Dimension"
hole.setExpression("Depth", "Params.hole_depth")
hole.DrillPoint = "Angled"
hole.DrillPointAngle = 118
hole.Reversed = True

sketch8 = body.newObject("Sketcher::SketchObject", "Sketch007")
sketch8.AttachmentSupport = (doc.getObject("XZ_Plane"), [""])
sketch8.MapMode = "FlatFace"
sketch8.AttachmentOffset = App.Placement(V(0, 0, 8.916017), App.Rotation())
sketch8.addGeometry(Part.Circle(V(0, 0, 0), V(0, 0, 1), 2), False)
sketch8.addConstraint(Sketcher.Constraint("Coincident", 0, 3, -1, 1))
sketch8.addConstraint(Sketcher.Constraint("Diameter", 0, 4.1))
sketch8.setExpression("Constraints[1]", "Params.sketch8_diameter")
doc.recompute()
hole2 = body.newObject("PartDesign::Hole", "Hole001")
hole2.Profile = sketch8
hole2.ThreadType = "None"
hole2.setExpression("Diameter", "Params.hole2_diameter")
hole2.DepthType = "Dimension"
hole2.setExpression("Depth", "Params.hole2_depth")
hole2.DrillPoint = "Angled"
hole2.DrillPointAngle = 118
body2 = doc.addObject("PartDesign::Body", "Body001")

sketch9 = body2.newObject("Sketcher::SketchObject", "Sketch008")
sketch9.AttachmentSupport = (doc.getObject("XZ_Plane001"), [""])
sketch9.MapMode = "FlatFace"
sketch9.AttachmentOffset = App.Placement(V(0, 0, -15.172083), App.Rotation())
add_polygon(sketch9, [(0, 16), (-23.7, 16), (-23.7, 46), (-8.7, 46), (-8.7, 35.3), (5, 35.3), (5, 30.3), (21, 30.3), (21, -8.8), (5, -8.8), (5, -13.8), (0, -13.8)])
sketch9.addConstraint(Sketcher.Constraint("Horizontal", 0))
sketch9.addConstraint(Sketcher.Constraint("Vertical", 1))
sketch9.addConstraint(Sketcher.Constraint("Horizontal", 2))
sketch9.addConstraint(Sketcher.Constraint("Vertical", 3))
sketch9.addConstraint(Sketcher.Constraint("Horizontal", 4))
sketch9.addConstraint(Sketcher.Constraint("Vertical", 5))
sketch9.addConstraint(Sketcher.Constraint("Horizontal", 6))
sketch9.addConstraint(Sketcher.Constraint("Vertical", 7))
sketch9.addConstraint(Sketcher.Constraint("Horizontal", 8))
sketch9.addConstraint(Sketcher.Constraint("Vertical", 9))
sketch9.addConstraint(Sketcher.Constraint("Horizontal", 10))
sketch9.addConstraint(Sketcher.Constraint("Vertical", 11))
sketch9.addConstraint(Sketcher.Constraint("PointOnObject", 10, 2, -2))
sketch9.addConstraint(Sketcher.Constraint("Vertical", 5, 2, 8, 2))
sketch9.addConstraint(Sketcher.Constraint("Equal", 10, 5))
sketch9.addConstraint(Sketcher.Constraint("Equal", 5, 9))
sketch9.addConstraint(Sketcher.Constraint("DistanceX", 2, 1, 2, 2, 15.0))
sketch9.addConstraint(Sketcher.Constraint("DistanceX", 6, 1, 6, 2, 16.0))
sketch9.addConstraint(Sketcher.Constraint("DistanceX", 10, 2, 10, 1, 5.0))
sketch9.addConstraint(Sketcher.Constraint("DistanceY", 1, 1, 1, 2, 30.0))
sketch9.addConstraint(Sketcher.Constraint("DistanceY", -1, 1, 0, 2, 16.0))
sketch9.addConstraint(Sketcher.Constraint("DistanceX", 0, 2, 0, 1, 23.701001))
sketch9.addConstraint(Sketcher.Constraint("DistanceY", 11, 1, 11, 2, 29.791008))
sketch9.addConstraint(Sketcher.Constraint("DistanceY", 3, 2, 3, 1, 10.716204))
sketch9.setExpression("Constraints[28]", "Params.sketch9_width")
sketch9.setExpression("Constraints[29]", "Params.sketch9_width2")
sketch9.setExpression("Constraints[30]", "Params.sketch9_width3")
sketch9.setExpression("Constraints[31]", "Params.sketch9_height")
pad5 = body2.newObject("PartDesign::Pad", "Pad004")
pad5.Profile = sketch9
pad5.setExpression("Length", "Params.pad5_length")

sketch10 = body2.newObject("Sketcher::SketchObject", "Sketch009")
sketch10.AttachmentSupport = (doc.getObject("XZ_Plane001"), [""])
sketch10.MapMode = "FlatFace"
sketch10.AttachmentOffset = App.Placement(V(0, 0, -15.172083), App.Rotation())
add_polygon(sketch10, [(21, 35.3), (21, 30.3), (5, 30.3), (5, 35.3)])
add_polygon(sketch10, [(21, -8.8), (21, -13.8), (5, -13.8), (5, -8.8)])
sketch10.addConstraint(Sketcher.Constraint("Vertical", 0))
sketch10.addConstraint(Sketcher.Constraint("Horizontal", 1))
sketch10.addConstraint(Sketcher.Constraint("Vertical", 2))
sketch10.addConstraint(Sketcher.Constraint("Horizontal", 3))
sketch10.addConstraint(Sketcher.Constraint("Vertical", 4))
sketch10.addConstraint(Sketcher.Constraint("Horizontal", 5))
sketch10.addConstraint(Sketcher.Constraint("Vertical", 6))
sketch10.addConstraint(Sketcher.Constraint("Horizontal", 7))
sketch10.addConstraint(Sketcher.Constraint("Vertical", 3, 2, 4, 2))
sketch10.addConstraint(Sketcher.Constraint("Vertical", 2, 2, 5, 2))
sketch10.addConstraint(Sketcher.Constraint("Equal", 2, 4))
sketch10.addConstraint(Sketcher.Constraint("DistanceX", 1, 2, 1, 1, 16.0))
sketch10.addConstraint(Sketcher.Constraint("DistanceY", 0, 2, 0, 1, 5.0))
sketch10.addConstraint(Sketcher.Constraint("DistanceX", -1, 1, 0, 2, 21.0))
sketch10.addConstraint(Sketcher.Constraint("DistanceY", 4, 2, -1, 1, 13.791008))
sketch10.addConstraint(Sketcher.Constraint("DistanceY", -1, 1, 0, 2, 30.283796))
sketch10.setExpression("Constraints[19]", "Params.sketch10_width")
sketch10.setExpression("Constraints[20]", "Params.sketch10_height")
pad6 = body2.newObject("PartDesign::Pad", "Pad005")
pad6.Profile = sketch10
pad6.setExpression("Length", "Params.pad6_length")

sketch11 = body2.newObject("Sketcher::SketchObject", "Sketch010")
sketch11.AttachmentSupport = (doc.getObject("XZ_Plane001"), [""])
sketch11.MapMode = "FlatFace"
sketch11.AttachmentOffset = App.Placement(V(0, 0, -15.172083), App.Rotation())
sketch11.addGeometry(Part.Circle(V(-16.2, 38.7, 0), V(0, 0, 1), 1.8), False)
sketch11.addGeometry(Part.Circle(V(-16.2, 24.7, 0), V(0, 0, 1), 1.8), False)
sketch11.addConstraint(Sketcher.Constraint("Equal", 0, 1))
sketch11.addConstraint(Sketcher.Constraint("Vertical", 0, 3, 1, 3))
sketch11.addConstraint(Sketcher.Constraint("Diameter", 0, 3.6))
sketch11.addConstraint(Sketcher.Constraint("DistanceY", 1, 3, 0, 3, 14.0))
sketch11.addConstraint(Sketcher.Constraint("DistanceX", 0, 3, -1, 1, 16.201001))
sketch11.addConstraint(Sketcher.Constraint("DistanceY", -1, 1, 0, 3, 38.700481))
sketch11.setExpression("Constraints[2]", "Params.sketch11_diameter")
doc.recompute()
hole3 = body2.newObject("PartDesign::Hole", "Hole002")
hole3.Profile = sketch11
hole3.ThreadType = "None"
hole3.setExpression("Diameter", "Params.hole3_diameter")
hole3.DepthType = "ThroughAll"
hole3.Reversed = True

sketch12 = body2.newObject("Sketcher::SketchObject", "Sketch011")
sketch12.AttachmentSupport = (doc.getObject("XY_Plane001"), [""])
sketch12.MapMode = "FlatFace"
sketch12.AttachmentOffset = App.Placement(V(0, 0, 35.283796), App.Rotation())
sketch12.addGeometry(Part.Circle(V(13, 3.5, 0), V(0, 0, 1), 2.8), False)
sketch12.addConstraint(Sketcher.Constraint("Diameter", 0, 5.5))
sketch12.addConstraint(Sketcher.Constraint("DistanceX", -1, 1, 0, 3, 13.0))
sketch12.addConstraint(Sketcher.Constraint("DistanceY", -1, 1, 0, 3, 3.495652))
sketch12.setExpression("Constraints[0]", "Params.sketch12_diameter")
doc.recompute()
hole4 = body2.newObject("PartDesign::Hole", "Hole003")
hole4.Profile = sketch12
hole4.ThreadType = "None"
hole4.setExpression("Diameter", "Params.hole4_diameter")
hole4.DepthType = "Dimension"
hole4.setExpression("Depth", "Params.hole4_depth")
hole4.DrillPoint = "Angled"
hole4.DrillPointAngle = 118
doc.recompute()

fillet = body2.newObject("PartDesign::Fillet", "Fillet")
fillet.Base = (hole4, edges_at(hole4, [
    (5, -1.828, 32.784),
    (21, -1.828, 32.784),
    (5, -1.828, -11.291),
    (21, -1.828, -11.291),
]))
fillet.setExpression("Radius", "Params.fillet_radius")

sketch13 = body2.newObject("Sketcher::SketchObject", "Sketch012")
sketch13.AttachmentSupport = (doc.getObject("XZ_Plane001"), [""])
sketch13.MapMode = "FlatFace"
sketch13.AttachmentOffset = App.Placement(V(0, 0, 1.827917), App.Rotation())
sketch13.addGeometry(Part.Circle(V(13, 32.8, 0), V(0, 0, 1), 1.5), False)
sketch13.addConstraint(Sketcher.Constraint("Diameter", 0, 3.0))
sketch13.addConstraint(Sketcher.Constraint("DistanceX", -1, 1, 0, 3, 13.0))
sketch13.addConstraint(Sketcher.Constraint("DistanceY", -1, 1, 0, 3, 32.783796))
sketch13.setExpression("Constraints[0]", "Params.sketch13_diameter")
doc.recompute()
hole5 = body2.newObject("PartDesign::Hole", "Hole004")
hole5.Profile = sketch13
hole5.ThreadType = "None"
hole5.setExpression("Diameter", "Params.hole5_diameter")
hole5.DepthType = "ThroughAll"

doc.recompute()
